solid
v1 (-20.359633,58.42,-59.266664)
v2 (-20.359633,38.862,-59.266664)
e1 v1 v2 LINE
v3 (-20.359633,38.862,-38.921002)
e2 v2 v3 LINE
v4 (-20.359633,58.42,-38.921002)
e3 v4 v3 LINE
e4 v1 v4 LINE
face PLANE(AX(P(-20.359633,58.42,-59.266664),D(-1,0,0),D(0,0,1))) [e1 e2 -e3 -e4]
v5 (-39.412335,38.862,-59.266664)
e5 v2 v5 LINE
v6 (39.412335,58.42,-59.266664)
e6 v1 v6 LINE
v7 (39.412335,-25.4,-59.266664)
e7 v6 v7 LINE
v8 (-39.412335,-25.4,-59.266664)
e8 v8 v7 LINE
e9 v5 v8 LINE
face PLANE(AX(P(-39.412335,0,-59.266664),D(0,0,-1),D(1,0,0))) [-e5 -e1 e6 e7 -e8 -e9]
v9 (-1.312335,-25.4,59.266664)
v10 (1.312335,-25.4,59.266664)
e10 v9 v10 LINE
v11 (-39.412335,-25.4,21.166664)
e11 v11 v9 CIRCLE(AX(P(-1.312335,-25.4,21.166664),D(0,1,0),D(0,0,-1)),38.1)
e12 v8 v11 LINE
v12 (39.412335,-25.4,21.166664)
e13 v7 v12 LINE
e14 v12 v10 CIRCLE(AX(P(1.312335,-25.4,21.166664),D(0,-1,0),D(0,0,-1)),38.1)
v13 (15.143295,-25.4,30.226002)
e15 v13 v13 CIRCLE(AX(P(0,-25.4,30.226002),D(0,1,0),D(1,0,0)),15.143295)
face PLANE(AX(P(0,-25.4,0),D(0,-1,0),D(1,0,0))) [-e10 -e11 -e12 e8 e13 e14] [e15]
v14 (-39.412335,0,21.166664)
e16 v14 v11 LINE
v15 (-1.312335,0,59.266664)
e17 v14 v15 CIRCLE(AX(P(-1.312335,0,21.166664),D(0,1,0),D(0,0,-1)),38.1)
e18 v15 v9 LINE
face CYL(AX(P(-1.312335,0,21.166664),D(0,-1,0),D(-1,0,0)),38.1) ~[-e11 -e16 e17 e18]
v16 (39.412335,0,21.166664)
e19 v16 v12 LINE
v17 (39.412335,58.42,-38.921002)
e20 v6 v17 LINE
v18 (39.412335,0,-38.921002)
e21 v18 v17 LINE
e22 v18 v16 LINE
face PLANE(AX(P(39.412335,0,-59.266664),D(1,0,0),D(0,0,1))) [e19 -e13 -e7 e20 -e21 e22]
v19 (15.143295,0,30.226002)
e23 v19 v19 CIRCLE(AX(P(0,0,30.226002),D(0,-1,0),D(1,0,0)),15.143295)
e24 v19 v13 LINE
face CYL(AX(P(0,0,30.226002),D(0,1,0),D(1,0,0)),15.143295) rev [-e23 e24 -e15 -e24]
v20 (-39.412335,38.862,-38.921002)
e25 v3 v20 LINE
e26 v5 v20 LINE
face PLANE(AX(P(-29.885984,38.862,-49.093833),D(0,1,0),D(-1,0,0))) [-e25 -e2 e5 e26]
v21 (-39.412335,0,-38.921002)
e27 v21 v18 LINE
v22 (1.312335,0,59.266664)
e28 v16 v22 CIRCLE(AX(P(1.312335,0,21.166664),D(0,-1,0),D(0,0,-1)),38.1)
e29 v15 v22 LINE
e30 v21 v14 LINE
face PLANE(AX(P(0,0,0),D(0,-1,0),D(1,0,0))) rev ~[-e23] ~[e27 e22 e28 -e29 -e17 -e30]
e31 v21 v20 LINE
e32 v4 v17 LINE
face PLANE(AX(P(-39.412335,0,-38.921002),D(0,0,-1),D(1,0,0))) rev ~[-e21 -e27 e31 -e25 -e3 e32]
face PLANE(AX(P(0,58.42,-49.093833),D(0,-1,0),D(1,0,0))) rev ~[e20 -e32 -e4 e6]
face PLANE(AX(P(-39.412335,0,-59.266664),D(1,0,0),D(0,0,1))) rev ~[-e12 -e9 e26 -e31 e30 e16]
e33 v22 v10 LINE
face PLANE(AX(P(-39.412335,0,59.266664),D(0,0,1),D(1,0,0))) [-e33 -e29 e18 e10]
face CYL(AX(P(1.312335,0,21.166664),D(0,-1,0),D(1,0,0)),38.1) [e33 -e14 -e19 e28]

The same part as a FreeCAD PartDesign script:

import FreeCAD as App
import Part
import Sketcher
Q = App.Units.Quantity


def edges_at(feature, points):
    """Names of the edges that pass closest to the given points."""
    edges = feature.Shape.Edges
    near = lambda p: min(range(len(edges)), key=lambda i: edges[i].distToShape(Part.Vertex(*p))[0])
    return sorted({f"Edge{near(p) + 1}" for p in points})

doc = App.newDocument("Part")
body = doc.addObject("PartDesign::Body", "Body")

# Sketch on XZ plane
sketch1 = body.newObject("Sketcher::SketchObject", "Sketch")
sketch1.AttachmentSupport = (doc.getObject("XZ_Plane"), [""])
sketch1.MapMode = "FlatFace"
sketch1.addGeometry(Part.LineSegment(App.Vector(-39, 59, 0), App.Vector(-39, -59, 0)), False)
sketch1.addGeometry(Part.LineSegment(App.Vector(-39, -59, 0), App.Vector(39, -59, 0)), False)
sketch1.addGeometry(Part.LineSegment(App.Vector(39, -59, 0), App.Vector(39, 59, 0)), False)
sketch1.addGeometry(Part.LineSegment(App.Vector(39, 59, 0), App.Vector(-39, 59, 0)), False)
sketch1.addConstraint(Sketcher.Constraint("Coincident", 0, 2, 1, 1))
sketch1.addConstraint(Sketcher.Constraint("Coincident", 1, 2, 2, 1))
sketch1.addConstraint(Sketcher.Constraint("Coincident", 2, 2, 3, 1))
sketch1.addConstraint(Sketcher.Constraint("Coincident", 3, 2, 0, 1))
sketch1.addConstraint(Sketcher.Constraint("Vertical", 0))
sketch1.addConstraint(Sketcher.Constraint("Horizontal", 1))
sketch1.addConstraint(Sketcher.Constraint("Vertical", 2))
sketch1.addConstraint(Sketcher.Constraint("Horizontal", 3))
sketch1.addConstraint(Sketcher.Constraint("Symmetric", 0, 2, 2, 2, -1, 1))
sketch1.addConstraint(Sketcher.Constraint("DistanceX", 1, 1, 1, 2, 78.824669))
sketch1.addConstraint(Sketcher.Constraint("DistanceY", 0, 2, 0, 1, 118.533328))
pad1 = body.newObject("PartDesign::Pad", "Pad")
pad1.Profile = sketch1
pad1.Length = Q("1 in")
doc.recompute()

fillet = body.newObject("PartDesign::Fillet", "Fillet")
fillet.Base = (pad1, edges_at(pad1, [(-39.412, -12.7, 59.267), (39.412, -12.7, 59.267)]))
fillet.Radius = Q("1.5 in")

# Sketch on XZ plane
sketch2 = body.newObject("Sketcher::SketchObject", "Sketch001")
sketch2.AttachmentSupport = (doc.getObject("XZ_Plane"), [""])
sketch2.MapMode = "FlatFace"
sketch2.addGeometry(Part.Circle(App.Vector(0, 30, 0), App.Vector(0, 0, 1), 15), False)
sketch2.addConstraint(Sketcher.Constraint("PointOnObject", 0, 3, -2))
sketch2.addConstraint(Sketcher.Constraint("DistanceY", -1, 1, 0, 3, Q("1.1900001 in")))
sketch2.addConstraint(Sketcher.Constraint("Diameter", 0, 30.28659))
pocket1 = body.newObject("PartDesign::Pocket", "Pocket")
pocket1.Profile = sketch2
pocket1.Type = "ThroughAll"
pocket1.Reversed = True

# Sketch on XZ plane
sketch3 = body.newObject("Sketcher::SketchObject", "Sketch002")
sketch3.AttachmentSupport = (doc.getObject("XZ_Plane"), [""])
sketch3.MapMode = "FlatFace"
sketch3.addGeometry(Part.LineSegment(App.Vector(-39, -39, 0), App.Vector(-39, -59, 0)), False)
sketch3.addGeometry(Part.LineSegment(App.Vector(-39, -59, 0), App.Vector(39, -59, 0)), False)
sketch3.addGeometry(Part.LineSegment(App.Vector(39, -59, 0), App.Vector(39, -39, 0)), False)
sketch3.addGeometry(Part.LineSegment(App.Vector(39, -39, 0), App.Vector(-39, -39, 0)), False)
sketch3.addConstraint(Sketcher.Constraint("Coincident", 0, 2, 1, 1))
sketch3.addConstraint(Sketcher.Constraint("Coincident", 1, 2, 2, 1))
sketch3.addConstraint(Sketcher.Constraint("Coincident", 2, 2, 3, 1))
sketch3.addConstraint(Sketcher.Constraint("Coincident", 3, 2, 0, 1))
sketch3.addConstraint(Sketcher.Constraint("Vertical", 0))
sketch3.addConstraint(Sketcher.Constraint("Horizontal", 1))
sketch3.addConstraint(Sketcher.Constraint("Vertical", 2))
sketch3.addConstraint(Sketcher.Constraint("Horizontal", 3))
sketch3.addConstraint(Sketcher.Constraint("DistanceX", 1, 1, 1, 2, 78.824669))
sketch3.addConstraint(Sketcher.Constraint("DistanceY", 2, 2, -1, 1, 38.921002))
sketch3.addConstraint(Sketcher.Constraint("DistanceY", 0, 2, 0, 1, 20.345662))
sketch3.addConstraint(Sketcher.Constraint("DistanceX", 0, 2, -1, 1, 39.412335))
pad2 = body.newObject("PartDesign::Pad", "Pad001")
pad2.Profile = sketch3
pad2.Length = Q("2.3 in")
pad2.Reversed = True

# Sketch on XZ plane
sketch4 = body.newObject("Sketcher::SketchObject", "Sketch003")
sketch4.AttachmentSupport = (doc.getObject("XZ_Plane"), [""])
sketch4.MapMode = "FlatFace"
sketch4.AttachmentOffset = App.Placement(App.Vector(0, 0, -2.3 * 25.4), App.Rotation())
sketch4.addGeometry(Part.LineSegment(App.Vector(-20, -39, 0), App.Vector(-20, -59, 0)), False)
sketch4.addGeometry(Part.LineSegment(App.Vector(-20, -59, 0), App.Vector(-39, -59, 0)), False)
sketch4.addGeometry(Part.LineSegment(App.Vector(-39, -59, 0), App.Vector(-39, -39, 0)), False)
sketch4.addGeometry(Part.LineSegment(App.Vector(-39, -39, 0), App.Vector(-20, -39, 0)), False)
sketch4.addConstraint(Sketcher.Constraint("Coincident", 0, 2, 1, 1))
sketch4.addConstraint(Sketcher.Constraint("Coincident", 1, 2, 2, 1))
sketch4.addConstraint(Sketcher.Constraint("Coincident", 2, 2, 3, 1))
sketch4.addConstraint(Sketcher.Constraint("Coincident", 3, 2, 0, 1))
sketch4.addConstraint(Sketcher.Constraint("Vertical", 0))
sketch4.addConstraint(Sketcher.Constraint("Horizontal", 1))
sketch4.addConstraint(Sketcher.Constraint("Vertical", 2))
sketch4.addConstraint(Sketcher.Constraint("Horizontal", 3))
sketch4.addConstraint(Sketcher.Constraint("DistanceX", 1, 2, 1, 1, 19.052701))
sketch4.addConstraint(Sketcher.Constraint("DistanceY", 2, 2, -1, 1, 38.921002))
sketch4.addConstraint(Sketcher.Constraint("DistanceY", 0, 2, 0, 1, 20.345662))
sketch4.addConstraint(Sketcher.Constraint("DistanceX", 0, 2, -1, 1, 20.359633))
pocket2 = body.newObject("PartDesign::Pocket", "Pocket001")
pocket2.Profile = sketch4
pocket2.Length = Q("0.77 in")
pocket2.Reversed = True

doc.recompute()
